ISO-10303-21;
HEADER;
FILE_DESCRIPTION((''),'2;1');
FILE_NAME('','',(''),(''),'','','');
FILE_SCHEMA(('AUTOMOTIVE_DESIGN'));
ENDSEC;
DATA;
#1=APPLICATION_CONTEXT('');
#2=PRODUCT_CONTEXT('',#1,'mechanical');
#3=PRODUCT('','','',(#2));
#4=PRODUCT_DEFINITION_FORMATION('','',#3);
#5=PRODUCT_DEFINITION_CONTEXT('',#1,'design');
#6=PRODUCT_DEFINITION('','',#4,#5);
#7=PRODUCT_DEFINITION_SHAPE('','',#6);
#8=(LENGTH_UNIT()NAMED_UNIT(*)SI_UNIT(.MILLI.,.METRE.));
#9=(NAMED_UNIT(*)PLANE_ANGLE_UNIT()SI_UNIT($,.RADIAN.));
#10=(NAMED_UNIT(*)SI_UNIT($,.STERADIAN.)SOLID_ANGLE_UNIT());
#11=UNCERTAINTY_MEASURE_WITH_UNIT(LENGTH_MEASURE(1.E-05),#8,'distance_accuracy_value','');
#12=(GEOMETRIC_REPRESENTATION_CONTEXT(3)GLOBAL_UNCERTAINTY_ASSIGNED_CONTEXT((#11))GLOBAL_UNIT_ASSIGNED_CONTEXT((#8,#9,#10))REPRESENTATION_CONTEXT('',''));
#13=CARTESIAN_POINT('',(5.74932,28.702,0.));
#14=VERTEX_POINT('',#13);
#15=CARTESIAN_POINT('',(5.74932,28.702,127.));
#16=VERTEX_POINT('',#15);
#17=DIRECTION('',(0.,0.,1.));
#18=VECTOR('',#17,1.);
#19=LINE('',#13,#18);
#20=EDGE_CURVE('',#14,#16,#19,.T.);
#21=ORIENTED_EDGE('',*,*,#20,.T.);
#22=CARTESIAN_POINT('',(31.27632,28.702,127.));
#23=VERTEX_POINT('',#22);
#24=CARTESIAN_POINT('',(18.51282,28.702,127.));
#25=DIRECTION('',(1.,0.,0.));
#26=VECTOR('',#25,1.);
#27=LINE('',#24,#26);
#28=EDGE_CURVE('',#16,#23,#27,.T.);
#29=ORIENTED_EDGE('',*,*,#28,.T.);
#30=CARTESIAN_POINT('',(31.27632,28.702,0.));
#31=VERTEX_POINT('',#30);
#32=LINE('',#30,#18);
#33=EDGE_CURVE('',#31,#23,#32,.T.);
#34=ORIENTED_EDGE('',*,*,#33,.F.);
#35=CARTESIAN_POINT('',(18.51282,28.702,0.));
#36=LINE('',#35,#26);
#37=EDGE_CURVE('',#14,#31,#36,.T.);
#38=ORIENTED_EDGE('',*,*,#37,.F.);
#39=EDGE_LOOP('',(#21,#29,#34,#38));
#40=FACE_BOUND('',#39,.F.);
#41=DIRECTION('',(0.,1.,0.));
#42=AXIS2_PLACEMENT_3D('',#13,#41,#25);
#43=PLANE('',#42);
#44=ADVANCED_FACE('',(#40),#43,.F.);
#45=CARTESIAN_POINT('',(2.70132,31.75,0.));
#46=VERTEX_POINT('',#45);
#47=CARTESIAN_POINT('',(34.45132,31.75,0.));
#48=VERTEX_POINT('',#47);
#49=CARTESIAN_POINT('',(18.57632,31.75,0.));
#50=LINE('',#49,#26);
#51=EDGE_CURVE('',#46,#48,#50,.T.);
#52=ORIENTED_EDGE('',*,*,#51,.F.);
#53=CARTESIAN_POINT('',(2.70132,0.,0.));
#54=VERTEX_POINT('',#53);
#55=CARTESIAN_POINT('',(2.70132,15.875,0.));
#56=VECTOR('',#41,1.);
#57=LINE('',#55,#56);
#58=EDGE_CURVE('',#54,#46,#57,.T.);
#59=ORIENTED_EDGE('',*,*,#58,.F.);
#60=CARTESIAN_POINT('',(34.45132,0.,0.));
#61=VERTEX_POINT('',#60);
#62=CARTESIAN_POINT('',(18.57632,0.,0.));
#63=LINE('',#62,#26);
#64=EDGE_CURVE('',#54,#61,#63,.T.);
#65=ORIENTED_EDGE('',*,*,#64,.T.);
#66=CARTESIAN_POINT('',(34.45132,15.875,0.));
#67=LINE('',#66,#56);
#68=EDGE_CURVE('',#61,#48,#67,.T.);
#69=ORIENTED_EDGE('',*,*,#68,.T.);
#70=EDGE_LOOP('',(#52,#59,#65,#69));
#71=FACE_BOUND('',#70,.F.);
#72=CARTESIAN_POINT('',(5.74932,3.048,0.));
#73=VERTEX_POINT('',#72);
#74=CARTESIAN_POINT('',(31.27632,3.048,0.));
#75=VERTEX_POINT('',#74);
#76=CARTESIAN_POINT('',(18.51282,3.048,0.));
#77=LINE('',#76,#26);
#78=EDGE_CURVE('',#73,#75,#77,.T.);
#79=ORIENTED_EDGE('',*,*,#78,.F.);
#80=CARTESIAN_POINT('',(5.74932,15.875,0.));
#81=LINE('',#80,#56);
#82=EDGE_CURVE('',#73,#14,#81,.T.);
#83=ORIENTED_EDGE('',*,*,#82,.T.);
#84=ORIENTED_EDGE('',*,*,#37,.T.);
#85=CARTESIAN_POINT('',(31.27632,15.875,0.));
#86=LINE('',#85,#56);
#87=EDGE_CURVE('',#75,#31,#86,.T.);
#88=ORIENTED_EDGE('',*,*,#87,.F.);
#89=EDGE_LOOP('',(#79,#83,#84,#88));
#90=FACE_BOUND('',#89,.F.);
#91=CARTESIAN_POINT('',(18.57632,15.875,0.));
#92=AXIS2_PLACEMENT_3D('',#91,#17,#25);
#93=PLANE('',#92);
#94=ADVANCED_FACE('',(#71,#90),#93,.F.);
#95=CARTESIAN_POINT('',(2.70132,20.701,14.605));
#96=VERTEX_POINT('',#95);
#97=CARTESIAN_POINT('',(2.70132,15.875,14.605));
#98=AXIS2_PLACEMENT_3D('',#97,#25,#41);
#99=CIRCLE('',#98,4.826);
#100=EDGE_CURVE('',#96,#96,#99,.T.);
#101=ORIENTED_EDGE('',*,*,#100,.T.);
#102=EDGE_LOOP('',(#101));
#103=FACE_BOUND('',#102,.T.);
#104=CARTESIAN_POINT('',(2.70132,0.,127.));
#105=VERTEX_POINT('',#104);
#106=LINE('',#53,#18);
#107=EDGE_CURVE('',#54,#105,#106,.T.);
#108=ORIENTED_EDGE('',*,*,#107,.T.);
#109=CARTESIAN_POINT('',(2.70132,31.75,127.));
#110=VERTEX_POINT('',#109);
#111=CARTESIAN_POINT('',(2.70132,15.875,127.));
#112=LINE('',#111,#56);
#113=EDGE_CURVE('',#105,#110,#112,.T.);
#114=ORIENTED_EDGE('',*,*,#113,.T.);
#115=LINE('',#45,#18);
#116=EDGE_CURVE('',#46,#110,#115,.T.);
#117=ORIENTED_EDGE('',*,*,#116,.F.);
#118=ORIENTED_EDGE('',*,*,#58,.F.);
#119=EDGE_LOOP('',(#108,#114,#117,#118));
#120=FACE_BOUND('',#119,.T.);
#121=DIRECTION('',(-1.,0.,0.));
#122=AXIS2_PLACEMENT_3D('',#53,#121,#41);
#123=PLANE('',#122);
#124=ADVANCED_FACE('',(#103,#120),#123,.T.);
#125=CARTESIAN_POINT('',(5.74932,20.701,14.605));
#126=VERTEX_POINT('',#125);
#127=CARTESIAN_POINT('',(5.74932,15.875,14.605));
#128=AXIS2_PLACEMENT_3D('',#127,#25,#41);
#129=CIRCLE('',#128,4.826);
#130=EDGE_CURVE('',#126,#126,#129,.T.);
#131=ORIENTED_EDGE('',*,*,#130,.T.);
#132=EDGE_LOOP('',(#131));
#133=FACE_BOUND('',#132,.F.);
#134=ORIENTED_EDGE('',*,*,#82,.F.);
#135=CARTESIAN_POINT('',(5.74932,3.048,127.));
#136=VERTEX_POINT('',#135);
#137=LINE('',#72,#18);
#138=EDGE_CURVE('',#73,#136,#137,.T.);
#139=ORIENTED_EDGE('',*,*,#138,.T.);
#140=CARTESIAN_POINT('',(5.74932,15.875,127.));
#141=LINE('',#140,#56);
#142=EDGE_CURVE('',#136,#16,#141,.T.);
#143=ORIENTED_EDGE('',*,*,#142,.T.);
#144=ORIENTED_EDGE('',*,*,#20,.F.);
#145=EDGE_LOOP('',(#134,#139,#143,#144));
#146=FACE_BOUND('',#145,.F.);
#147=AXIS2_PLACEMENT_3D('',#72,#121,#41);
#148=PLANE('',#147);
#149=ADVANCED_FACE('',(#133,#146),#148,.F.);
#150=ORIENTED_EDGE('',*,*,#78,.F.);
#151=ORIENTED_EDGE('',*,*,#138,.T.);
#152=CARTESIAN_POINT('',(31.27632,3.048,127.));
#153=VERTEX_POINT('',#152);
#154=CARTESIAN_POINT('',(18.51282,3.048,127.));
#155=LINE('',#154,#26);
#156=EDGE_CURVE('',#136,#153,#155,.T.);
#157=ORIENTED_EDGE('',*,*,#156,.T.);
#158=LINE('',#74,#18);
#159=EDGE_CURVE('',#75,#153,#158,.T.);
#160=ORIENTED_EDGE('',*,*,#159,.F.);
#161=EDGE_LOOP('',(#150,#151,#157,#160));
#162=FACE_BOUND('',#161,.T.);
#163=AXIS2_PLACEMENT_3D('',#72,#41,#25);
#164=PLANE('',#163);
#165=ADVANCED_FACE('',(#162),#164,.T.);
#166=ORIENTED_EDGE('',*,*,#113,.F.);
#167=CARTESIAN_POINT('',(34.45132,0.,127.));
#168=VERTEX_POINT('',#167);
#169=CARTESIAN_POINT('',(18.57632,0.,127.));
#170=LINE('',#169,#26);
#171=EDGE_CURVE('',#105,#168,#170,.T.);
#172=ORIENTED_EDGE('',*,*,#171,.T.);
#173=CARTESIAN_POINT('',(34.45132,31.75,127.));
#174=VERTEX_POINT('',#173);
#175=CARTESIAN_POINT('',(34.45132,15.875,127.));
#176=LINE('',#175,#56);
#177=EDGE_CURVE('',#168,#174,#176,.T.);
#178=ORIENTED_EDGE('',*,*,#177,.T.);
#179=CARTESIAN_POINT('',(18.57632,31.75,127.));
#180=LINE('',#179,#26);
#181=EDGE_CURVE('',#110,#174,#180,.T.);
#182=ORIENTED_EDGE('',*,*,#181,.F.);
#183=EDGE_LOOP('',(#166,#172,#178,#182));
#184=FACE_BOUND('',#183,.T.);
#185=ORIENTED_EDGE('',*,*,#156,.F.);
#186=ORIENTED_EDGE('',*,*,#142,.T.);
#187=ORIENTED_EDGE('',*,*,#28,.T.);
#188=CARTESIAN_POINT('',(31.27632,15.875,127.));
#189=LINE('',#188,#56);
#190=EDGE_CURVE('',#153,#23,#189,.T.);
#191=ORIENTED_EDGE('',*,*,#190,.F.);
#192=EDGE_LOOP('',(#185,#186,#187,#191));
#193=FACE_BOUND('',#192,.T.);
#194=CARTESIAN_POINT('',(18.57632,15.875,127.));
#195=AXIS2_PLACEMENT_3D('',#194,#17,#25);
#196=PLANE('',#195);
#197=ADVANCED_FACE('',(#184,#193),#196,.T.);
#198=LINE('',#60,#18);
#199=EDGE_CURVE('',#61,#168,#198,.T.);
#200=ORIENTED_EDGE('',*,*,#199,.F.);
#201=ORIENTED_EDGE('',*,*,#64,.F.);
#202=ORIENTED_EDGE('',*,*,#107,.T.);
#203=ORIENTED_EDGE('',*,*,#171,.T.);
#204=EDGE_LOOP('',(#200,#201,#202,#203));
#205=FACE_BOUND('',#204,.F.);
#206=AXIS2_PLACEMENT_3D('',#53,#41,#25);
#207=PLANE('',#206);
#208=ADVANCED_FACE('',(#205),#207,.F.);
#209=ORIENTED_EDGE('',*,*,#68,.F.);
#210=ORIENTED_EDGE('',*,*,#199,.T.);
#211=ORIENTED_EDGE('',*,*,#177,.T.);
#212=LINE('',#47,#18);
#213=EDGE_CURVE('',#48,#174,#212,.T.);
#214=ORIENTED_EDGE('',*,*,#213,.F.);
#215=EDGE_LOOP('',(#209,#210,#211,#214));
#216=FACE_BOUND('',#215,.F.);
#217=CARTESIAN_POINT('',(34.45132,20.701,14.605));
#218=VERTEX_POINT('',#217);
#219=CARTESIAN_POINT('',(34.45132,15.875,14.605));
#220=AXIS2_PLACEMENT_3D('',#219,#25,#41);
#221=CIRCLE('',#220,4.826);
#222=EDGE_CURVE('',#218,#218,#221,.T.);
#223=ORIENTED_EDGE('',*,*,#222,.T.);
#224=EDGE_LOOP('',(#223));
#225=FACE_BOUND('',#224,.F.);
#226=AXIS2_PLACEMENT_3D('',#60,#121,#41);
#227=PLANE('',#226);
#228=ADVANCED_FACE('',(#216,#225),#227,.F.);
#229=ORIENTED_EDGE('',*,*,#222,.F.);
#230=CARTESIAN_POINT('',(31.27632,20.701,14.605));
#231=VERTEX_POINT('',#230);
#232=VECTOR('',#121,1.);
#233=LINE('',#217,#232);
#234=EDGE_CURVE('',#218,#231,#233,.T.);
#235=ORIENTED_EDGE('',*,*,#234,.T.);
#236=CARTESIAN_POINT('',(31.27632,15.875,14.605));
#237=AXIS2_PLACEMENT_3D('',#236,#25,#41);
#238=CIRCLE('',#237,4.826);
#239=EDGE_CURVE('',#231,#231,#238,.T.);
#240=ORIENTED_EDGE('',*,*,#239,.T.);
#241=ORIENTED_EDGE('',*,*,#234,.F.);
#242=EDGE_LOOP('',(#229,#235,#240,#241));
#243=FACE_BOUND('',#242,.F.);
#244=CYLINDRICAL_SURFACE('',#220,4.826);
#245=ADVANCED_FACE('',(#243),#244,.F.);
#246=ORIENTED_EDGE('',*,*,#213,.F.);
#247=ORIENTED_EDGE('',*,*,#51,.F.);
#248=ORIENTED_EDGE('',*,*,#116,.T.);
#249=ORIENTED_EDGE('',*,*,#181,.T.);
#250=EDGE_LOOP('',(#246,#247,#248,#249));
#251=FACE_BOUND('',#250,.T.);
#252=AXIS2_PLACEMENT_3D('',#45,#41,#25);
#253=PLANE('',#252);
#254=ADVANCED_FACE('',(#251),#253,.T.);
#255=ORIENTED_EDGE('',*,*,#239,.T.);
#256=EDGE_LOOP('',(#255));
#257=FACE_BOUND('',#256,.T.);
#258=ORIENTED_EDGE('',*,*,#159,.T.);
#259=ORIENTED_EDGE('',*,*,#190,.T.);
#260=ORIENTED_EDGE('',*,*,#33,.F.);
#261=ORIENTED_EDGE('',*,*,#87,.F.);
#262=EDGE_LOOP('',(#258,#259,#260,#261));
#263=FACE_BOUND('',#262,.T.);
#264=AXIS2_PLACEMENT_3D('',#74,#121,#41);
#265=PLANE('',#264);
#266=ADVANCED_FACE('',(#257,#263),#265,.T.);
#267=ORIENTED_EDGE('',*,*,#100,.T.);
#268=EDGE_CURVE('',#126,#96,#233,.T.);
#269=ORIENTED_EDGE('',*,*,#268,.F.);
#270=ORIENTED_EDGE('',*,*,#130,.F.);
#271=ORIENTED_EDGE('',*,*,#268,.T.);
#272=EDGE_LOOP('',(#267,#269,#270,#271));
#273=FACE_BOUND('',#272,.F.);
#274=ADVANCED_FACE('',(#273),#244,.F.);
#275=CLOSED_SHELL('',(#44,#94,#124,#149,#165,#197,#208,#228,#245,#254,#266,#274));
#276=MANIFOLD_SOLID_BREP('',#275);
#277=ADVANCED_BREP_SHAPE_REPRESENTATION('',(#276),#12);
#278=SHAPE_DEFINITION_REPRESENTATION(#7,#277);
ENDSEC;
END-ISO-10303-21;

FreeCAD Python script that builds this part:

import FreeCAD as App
import Part
import Sketcher
from FreeCAD import Vector
Q = App.Units.Quantity


def add_polygon(sketch, points):
    """Adds a closed chain of lines whose ends are joined by coincident constraints."""
    first, n = sketch.GeometryCount, len(points)
    for a, b in zip(points, points[1:] + points[:1]):
        sketch.addGeometry(Part.LineSegment(App.Vector(*a, 0), App.Vector(*b, 0)), False)
    for i in range(n):
        sketch.addConstraint(Sketcher.Constraint("Coincident", first + i, 2, first + (i + 1) % n, 1))

doc = App.newDocument("Part")
body = doc.addObject("PartDesign::Body", "Body")

sketch1 = body.newObject("Sketcher::SketchObject", "Sketch")
sketch1.AttachmentSupport = (doc.getObject("XY_Plane"), [""])
sketch1.MapMode = "FlatFace"
add_polygon(sketch1, [(2.70132, 31.75), (2.70132, 0), (34.45132, 0), (34.45132, 31.75)])
add_polygon(sketch1, [(31.27632, 3.048), (5.74932, 3.048), (5.74932, 28.702), (31.27632, 28.702)])
sketch1.addConstraint(Sketcher.Constraint("Vertical", 0))
sketch1.addConstraint(Sketcher.Constraint("Horizontal", 1))
sketch1.addConstraint(Sketcher.Constraint("Vertical", 2))
sketch1.addConstraint(Sketcher.Constraint("Horizontal", 3))
sketch1.addConstraint(Sketcher.Constraint("Horizontal", 4))
sketch1.addConstraint(Sketcher.Constraint("Vertical", 5))
sketch1.addConstraint(Sketcher.Constraint("Horizontal", 6))
sketch1.addConstraint(Sketcher.Constraint("Vertical", 7))
sketch1.addConstraint(Sketcher.Constraint("PointOnObject", 0, 2, -1))
sketch1.addConstraint(Sketcher.Constraint("Equal", 3, 0))
sketch1.addConstraint(Sketcher.Constraint("DistanceX", 1, 1, 1, 2, Q("1.25 in")))
sketch1.addConstraint(Sketcher.Constraint("DistanceY", 5, 1, 5, 2, Q("1.01 in")))
sketch1.addConstraint(Sketcher.Constraint("DistanceX", 4, 2, 4, 1, Q("1.005 in")))
sketch1.addConstraint(Sketcher.Constraint("DistanceY", -1, 1, 4, 2, Q("0.12 in")))
sketch1.addConstraint(Sketcher.Constraint("DistanceX", 0, 2, 4, 2, Q("0.12 in")))
sketch1.addConstraint(Sketcher.Constraint("DistanceX", -1, 1, 0, 2, 2.70132))
pad1 = body.newObject("PartDesign::Pad", "Pad")
pad1.Profile = sketch1
pad1.Length = Q("5 in")

sketch2 = body.newObject("Sketcher::SketchObject", "Sketch001")
sketch2.AttachmentSupport = (doc.getObject("YZ_Plane"), [""])
sketch2.MapMode = "FlatFace"
sketch2.AttachmentOffset = App.Placement(Vector(0, 0, 34.45132), App.Rotation())
sketch2.addGeometry(Part.Circle(Vector(15.875, 14.605, 0), Vector(0, 0, 1), 4.826), False)
sketch2.addConstraint(Sketcher.Constraint("Diameter", 0, Q("0.38 in")))
sketch2.addConstraint(Sketcher.Constraint("DistanceX", -1, 1, 0, 3, Q("0.625 in")))
sketch2.addConstraint(Sketcher.Constraint("DistanceY", -1, 1, 0, 3, Q("0.575 in")))
pocket1 = body.newObject("PartDesign::Pocket", "Pocket")
pocket1.Profile = sketch2
pocket1.Type = "ThroughAll"

doc.recompute()
